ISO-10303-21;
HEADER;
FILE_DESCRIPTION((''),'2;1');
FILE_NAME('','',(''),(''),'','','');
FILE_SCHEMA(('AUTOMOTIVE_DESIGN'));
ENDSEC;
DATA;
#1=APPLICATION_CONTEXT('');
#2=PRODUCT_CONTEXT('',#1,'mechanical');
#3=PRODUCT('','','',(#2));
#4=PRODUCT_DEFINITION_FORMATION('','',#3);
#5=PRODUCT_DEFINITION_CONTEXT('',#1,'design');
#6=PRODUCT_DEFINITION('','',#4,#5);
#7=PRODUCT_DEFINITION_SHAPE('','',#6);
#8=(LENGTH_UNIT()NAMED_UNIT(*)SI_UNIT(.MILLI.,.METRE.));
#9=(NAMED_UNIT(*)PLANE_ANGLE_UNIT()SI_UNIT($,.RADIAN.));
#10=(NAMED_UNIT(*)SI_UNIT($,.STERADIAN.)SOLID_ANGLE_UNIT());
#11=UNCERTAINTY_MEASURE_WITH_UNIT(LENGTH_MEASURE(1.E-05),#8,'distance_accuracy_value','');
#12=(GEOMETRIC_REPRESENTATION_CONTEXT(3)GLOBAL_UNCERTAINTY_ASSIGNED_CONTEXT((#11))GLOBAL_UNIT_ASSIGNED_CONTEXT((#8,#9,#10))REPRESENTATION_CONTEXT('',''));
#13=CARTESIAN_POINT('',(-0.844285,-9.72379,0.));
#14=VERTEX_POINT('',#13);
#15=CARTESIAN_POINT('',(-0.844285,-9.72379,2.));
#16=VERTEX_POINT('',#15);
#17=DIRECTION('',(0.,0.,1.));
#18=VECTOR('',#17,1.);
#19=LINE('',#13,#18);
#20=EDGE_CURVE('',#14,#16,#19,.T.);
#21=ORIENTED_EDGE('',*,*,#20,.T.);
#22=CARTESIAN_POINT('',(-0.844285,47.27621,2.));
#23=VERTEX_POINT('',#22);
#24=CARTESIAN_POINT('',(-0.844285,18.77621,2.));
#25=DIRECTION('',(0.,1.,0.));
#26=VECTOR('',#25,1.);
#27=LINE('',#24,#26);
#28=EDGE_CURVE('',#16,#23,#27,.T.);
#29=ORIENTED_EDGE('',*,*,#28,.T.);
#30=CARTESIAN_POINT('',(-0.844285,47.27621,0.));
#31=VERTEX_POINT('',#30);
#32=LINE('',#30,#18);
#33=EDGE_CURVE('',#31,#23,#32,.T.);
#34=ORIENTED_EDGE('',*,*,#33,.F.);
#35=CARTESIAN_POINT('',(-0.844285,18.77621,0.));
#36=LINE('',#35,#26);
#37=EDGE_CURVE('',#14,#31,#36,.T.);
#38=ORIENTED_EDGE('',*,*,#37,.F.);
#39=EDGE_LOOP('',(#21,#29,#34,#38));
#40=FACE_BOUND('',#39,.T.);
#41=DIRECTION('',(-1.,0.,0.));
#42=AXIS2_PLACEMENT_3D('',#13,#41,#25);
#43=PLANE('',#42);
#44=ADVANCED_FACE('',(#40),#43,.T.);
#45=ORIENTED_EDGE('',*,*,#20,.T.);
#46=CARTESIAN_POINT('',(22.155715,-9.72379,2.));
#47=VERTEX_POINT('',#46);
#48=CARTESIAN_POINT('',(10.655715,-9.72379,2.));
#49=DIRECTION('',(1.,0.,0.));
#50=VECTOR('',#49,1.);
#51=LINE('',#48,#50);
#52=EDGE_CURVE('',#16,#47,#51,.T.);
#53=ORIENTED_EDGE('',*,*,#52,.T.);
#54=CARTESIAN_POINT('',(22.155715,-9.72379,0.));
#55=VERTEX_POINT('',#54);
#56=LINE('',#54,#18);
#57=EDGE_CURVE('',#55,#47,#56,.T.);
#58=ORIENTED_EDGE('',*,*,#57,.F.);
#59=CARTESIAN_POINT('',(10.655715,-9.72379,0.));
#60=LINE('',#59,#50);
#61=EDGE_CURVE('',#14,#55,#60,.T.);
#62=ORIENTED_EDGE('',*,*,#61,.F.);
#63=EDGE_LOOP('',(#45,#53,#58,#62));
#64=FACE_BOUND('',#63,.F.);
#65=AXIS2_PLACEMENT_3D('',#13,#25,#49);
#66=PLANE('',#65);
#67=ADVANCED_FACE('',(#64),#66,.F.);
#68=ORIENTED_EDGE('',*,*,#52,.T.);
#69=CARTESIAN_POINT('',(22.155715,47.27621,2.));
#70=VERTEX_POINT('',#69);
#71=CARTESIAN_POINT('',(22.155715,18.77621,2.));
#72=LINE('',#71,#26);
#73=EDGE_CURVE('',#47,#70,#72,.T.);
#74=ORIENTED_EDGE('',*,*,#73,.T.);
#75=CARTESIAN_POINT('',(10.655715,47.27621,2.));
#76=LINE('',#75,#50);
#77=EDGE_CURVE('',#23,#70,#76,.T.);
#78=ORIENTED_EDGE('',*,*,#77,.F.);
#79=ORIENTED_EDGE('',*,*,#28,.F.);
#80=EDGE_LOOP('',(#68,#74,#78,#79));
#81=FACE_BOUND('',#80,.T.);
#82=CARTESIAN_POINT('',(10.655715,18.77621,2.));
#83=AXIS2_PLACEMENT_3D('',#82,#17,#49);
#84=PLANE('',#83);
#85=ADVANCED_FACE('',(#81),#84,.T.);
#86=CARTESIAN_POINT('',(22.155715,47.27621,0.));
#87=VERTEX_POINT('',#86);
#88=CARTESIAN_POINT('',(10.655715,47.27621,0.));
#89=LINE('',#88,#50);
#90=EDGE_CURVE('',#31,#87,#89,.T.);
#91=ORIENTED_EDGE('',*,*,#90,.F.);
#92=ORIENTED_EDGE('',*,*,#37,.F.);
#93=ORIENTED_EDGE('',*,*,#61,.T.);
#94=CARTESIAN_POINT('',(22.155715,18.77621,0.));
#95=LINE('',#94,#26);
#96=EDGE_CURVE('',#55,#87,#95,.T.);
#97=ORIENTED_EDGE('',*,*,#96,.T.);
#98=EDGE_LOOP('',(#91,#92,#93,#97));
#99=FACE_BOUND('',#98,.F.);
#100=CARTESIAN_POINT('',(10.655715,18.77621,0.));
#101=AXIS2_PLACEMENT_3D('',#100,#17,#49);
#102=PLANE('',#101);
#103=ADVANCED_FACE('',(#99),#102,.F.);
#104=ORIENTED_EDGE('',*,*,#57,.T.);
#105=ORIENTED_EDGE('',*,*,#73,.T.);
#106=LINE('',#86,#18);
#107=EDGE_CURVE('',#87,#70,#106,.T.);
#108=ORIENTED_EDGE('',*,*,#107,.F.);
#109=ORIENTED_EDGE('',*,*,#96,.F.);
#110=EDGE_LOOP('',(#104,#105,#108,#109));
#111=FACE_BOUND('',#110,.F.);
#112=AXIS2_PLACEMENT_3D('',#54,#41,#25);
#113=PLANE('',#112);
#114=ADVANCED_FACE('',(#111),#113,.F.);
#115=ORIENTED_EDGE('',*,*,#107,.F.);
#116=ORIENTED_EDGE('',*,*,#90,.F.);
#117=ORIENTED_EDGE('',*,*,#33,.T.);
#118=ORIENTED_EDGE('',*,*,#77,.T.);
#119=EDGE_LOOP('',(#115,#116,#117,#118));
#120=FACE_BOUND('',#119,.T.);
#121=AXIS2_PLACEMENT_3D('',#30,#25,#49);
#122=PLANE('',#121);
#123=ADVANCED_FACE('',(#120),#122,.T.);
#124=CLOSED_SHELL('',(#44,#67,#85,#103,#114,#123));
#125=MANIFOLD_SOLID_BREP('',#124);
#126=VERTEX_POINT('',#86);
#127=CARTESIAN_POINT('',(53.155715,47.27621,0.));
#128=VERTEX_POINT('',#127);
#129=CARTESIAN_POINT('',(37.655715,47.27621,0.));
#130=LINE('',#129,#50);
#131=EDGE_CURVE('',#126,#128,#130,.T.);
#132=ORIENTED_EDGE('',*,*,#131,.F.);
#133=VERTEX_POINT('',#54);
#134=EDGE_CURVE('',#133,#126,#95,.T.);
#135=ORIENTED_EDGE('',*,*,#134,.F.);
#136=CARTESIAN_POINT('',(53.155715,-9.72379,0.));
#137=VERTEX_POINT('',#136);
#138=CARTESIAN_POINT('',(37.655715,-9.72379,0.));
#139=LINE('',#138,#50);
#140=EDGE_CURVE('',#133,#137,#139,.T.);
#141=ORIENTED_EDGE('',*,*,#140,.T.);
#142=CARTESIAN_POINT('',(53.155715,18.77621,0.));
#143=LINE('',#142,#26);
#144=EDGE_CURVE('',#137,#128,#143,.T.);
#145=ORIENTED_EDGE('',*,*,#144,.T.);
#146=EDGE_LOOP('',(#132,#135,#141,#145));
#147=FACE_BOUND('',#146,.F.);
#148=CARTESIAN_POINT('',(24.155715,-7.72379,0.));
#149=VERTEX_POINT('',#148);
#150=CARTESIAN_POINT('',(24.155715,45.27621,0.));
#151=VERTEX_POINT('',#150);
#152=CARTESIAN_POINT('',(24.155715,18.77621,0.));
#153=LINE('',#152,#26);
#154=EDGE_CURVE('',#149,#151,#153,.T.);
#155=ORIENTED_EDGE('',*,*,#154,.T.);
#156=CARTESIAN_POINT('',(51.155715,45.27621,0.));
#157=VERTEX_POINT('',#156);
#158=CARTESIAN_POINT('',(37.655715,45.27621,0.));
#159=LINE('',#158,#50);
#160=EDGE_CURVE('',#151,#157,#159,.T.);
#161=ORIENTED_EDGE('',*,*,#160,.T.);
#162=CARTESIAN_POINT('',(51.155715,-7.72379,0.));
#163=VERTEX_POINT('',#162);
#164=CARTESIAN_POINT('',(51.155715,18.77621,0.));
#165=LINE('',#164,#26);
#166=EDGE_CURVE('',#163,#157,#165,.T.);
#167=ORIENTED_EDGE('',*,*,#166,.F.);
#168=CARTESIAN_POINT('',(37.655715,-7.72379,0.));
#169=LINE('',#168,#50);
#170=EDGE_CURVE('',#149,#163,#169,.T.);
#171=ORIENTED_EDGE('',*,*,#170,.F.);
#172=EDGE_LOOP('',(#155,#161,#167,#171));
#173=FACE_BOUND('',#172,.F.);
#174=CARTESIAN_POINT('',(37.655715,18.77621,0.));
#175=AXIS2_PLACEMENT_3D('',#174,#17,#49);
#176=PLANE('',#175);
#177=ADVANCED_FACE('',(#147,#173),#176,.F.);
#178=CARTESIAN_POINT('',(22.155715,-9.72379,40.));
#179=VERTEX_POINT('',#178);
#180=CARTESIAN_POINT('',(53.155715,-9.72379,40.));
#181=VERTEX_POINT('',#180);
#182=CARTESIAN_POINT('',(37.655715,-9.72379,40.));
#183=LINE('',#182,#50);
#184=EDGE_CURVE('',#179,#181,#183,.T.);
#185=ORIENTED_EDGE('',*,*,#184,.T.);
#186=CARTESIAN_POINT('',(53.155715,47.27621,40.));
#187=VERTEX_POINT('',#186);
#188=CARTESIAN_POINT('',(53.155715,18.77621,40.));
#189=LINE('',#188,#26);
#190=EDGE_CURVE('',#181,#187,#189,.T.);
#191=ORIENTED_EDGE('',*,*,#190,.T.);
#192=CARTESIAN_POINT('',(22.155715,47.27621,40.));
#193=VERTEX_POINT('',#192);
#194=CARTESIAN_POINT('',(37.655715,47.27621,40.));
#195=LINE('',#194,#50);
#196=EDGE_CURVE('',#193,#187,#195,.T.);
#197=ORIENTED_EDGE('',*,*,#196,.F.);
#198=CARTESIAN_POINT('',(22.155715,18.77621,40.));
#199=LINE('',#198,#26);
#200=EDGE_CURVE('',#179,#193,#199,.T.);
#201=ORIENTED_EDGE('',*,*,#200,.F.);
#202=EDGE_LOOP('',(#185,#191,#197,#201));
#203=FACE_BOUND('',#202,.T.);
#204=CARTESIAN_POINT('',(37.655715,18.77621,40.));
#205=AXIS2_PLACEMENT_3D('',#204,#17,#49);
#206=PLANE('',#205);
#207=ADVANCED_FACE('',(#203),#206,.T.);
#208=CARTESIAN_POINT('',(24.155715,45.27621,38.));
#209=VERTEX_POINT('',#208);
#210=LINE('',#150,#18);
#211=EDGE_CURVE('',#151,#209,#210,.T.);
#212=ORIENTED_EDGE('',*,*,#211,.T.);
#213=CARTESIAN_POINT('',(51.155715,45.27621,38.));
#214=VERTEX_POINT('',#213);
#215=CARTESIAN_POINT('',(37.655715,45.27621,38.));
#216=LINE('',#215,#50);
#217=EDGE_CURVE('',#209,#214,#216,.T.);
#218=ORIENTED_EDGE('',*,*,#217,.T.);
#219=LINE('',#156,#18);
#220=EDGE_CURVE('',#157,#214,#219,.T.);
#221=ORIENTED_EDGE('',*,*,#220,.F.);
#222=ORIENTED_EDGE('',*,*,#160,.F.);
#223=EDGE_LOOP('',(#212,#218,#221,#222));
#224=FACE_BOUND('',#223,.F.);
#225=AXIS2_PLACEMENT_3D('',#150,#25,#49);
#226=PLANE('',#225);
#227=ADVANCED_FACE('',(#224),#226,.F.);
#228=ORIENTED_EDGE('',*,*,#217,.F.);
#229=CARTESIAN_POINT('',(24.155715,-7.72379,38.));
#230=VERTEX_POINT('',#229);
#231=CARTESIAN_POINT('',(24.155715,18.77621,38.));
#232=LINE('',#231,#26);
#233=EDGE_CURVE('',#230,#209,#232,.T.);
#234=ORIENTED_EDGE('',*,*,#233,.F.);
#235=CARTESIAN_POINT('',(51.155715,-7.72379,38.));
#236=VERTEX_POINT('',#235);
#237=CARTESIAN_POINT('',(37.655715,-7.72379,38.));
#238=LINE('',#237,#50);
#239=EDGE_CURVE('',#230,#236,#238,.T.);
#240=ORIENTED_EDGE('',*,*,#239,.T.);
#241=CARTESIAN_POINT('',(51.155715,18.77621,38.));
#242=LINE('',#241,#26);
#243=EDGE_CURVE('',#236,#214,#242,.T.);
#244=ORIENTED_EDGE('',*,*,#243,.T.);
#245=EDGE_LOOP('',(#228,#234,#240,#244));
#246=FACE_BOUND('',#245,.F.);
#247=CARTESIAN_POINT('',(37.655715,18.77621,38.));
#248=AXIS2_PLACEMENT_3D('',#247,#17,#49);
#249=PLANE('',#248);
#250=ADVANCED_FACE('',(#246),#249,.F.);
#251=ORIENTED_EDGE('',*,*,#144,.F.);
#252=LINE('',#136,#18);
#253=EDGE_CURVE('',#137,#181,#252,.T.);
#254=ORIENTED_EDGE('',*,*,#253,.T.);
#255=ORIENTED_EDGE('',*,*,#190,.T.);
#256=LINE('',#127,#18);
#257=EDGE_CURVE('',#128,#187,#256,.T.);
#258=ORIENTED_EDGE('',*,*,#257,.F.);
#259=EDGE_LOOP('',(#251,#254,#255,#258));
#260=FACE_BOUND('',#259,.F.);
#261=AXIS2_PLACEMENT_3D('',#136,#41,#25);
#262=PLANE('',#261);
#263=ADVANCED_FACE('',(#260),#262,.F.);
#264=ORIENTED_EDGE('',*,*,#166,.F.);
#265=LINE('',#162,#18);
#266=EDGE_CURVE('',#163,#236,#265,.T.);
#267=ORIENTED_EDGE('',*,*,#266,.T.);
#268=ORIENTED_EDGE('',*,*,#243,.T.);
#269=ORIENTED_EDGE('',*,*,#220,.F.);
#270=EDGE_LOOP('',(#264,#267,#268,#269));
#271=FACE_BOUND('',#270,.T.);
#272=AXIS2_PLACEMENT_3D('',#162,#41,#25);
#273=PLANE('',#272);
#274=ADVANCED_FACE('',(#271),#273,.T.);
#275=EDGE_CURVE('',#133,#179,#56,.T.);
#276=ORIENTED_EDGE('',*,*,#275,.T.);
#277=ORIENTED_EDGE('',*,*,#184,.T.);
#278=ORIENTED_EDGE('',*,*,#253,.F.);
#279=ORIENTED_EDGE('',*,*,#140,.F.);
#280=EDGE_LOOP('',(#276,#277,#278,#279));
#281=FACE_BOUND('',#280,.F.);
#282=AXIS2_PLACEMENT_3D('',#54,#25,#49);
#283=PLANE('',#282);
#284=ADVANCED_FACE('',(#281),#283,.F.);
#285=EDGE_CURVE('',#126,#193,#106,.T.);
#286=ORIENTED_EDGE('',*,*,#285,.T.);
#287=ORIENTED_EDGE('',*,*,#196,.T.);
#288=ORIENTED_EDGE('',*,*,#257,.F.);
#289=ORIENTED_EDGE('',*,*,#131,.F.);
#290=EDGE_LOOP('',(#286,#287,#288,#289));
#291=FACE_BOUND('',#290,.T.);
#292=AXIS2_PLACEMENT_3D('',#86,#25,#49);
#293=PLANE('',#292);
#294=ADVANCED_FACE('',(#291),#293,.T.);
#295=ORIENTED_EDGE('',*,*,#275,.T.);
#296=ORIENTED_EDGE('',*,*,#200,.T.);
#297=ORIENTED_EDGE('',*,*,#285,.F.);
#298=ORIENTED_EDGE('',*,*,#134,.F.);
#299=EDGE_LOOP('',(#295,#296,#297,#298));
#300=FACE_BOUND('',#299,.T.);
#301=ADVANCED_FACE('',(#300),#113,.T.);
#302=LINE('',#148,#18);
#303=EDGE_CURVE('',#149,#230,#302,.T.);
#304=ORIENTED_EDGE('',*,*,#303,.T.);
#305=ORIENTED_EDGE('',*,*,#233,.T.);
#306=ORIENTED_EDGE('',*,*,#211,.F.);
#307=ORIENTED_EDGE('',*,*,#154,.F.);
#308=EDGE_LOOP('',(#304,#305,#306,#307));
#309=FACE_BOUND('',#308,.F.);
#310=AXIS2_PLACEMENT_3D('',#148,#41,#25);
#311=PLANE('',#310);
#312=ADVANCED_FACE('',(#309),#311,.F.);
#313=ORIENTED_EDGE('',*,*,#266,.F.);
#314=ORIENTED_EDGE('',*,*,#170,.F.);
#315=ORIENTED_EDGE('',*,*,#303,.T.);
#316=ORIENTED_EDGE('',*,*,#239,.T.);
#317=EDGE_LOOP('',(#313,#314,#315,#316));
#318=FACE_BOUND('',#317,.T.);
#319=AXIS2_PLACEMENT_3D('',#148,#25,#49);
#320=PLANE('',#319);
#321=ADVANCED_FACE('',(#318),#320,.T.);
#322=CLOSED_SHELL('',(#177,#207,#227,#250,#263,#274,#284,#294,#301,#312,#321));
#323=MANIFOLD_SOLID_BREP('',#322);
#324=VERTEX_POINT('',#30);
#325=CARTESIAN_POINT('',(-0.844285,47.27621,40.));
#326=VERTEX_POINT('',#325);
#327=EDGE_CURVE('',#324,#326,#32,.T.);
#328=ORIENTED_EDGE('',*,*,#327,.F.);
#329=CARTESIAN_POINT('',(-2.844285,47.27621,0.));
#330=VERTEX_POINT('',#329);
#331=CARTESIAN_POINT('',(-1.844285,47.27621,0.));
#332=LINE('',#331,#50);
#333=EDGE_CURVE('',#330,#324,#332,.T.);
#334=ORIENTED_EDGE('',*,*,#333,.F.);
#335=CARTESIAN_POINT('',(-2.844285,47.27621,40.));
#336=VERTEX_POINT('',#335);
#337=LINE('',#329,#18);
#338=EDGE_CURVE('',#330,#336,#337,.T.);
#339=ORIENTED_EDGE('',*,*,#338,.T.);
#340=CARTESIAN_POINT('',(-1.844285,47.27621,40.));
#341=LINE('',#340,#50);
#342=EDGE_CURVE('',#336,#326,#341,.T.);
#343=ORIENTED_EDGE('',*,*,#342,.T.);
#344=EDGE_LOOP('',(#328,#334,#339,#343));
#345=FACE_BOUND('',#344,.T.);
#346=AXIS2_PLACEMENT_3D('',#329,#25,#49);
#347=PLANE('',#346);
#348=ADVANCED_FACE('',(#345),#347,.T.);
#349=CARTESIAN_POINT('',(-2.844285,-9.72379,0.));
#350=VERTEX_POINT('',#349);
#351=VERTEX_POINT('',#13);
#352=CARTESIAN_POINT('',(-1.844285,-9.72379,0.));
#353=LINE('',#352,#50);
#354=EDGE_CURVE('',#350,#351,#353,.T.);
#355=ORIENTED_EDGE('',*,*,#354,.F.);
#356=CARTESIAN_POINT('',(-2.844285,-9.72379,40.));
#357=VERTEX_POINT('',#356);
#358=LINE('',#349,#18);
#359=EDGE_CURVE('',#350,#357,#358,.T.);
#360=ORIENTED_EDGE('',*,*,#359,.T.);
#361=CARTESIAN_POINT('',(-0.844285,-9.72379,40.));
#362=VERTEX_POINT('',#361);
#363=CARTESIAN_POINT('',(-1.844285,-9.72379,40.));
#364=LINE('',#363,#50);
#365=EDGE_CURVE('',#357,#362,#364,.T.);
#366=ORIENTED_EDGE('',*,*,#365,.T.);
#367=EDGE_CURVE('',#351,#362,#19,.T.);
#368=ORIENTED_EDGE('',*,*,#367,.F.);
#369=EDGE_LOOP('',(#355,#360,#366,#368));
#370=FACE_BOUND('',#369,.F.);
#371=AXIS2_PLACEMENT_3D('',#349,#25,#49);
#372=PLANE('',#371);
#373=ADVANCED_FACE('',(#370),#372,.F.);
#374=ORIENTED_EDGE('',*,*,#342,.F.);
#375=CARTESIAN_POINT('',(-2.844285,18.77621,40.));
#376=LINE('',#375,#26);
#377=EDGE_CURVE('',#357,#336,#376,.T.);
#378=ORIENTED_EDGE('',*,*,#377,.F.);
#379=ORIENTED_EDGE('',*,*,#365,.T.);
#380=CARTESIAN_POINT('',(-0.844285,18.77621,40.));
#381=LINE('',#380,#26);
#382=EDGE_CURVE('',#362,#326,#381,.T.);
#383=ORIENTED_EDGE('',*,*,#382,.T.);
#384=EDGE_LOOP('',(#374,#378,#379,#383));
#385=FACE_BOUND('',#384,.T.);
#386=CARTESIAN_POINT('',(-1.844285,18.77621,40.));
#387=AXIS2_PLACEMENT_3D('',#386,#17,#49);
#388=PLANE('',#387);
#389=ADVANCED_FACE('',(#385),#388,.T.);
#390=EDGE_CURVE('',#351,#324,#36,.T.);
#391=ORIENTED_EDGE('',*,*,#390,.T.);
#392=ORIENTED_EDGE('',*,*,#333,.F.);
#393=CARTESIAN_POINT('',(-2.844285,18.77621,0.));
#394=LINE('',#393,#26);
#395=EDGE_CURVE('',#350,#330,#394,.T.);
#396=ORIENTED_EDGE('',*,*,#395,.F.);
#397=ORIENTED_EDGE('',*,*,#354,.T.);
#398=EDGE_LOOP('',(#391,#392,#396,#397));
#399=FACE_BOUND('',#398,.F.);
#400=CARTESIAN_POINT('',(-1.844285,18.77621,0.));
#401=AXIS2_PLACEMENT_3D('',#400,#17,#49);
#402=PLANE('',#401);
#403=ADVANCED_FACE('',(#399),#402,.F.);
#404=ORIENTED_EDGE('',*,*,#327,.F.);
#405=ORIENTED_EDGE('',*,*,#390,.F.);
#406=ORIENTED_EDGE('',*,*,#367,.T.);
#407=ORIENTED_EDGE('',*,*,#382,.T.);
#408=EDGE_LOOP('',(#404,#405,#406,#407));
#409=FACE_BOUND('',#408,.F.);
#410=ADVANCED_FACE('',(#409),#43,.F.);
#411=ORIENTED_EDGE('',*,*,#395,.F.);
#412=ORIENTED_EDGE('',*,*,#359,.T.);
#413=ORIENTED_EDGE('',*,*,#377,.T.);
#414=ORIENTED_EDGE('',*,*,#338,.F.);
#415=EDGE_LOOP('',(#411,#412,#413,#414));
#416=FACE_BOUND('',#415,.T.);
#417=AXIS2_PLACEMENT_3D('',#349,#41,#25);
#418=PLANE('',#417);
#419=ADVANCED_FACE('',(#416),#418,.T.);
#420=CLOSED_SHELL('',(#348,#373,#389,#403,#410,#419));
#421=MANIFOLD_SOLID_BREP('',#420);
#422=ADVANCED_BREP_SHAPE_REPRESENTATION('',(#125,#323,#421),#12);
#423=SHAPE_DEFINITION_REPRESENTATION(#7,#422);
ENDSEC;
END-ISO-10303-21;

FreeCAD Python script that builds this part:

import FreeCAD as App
import Part
import Sketcher

V = App.Vector
Q = App.Units.Quantity


def add_polygon(sketch, points):
    """Adds a closed chain of lines whose ends are joined by coincident constraints."""
    first, n = sketch.GeometryCount, len(points)
    for a, b in zip(points, points[1:] + points[:1]):
        sketch.addGeometry(Part.LineSegment(App.Vector(*a, 0), App.Vector(*b, 0)), False)
    for i in range(n):
        sketch.addConstraint(Sketcher.Constraint("Coincident", first + i, 2, first + (i + 1) % n, 1))

doc = App.newDocument("Part")
params = doc.addObject("Spreadsheet::Sheet", "Params")
for row, (alias, value) in enumerate([
    ("sketch1_width", "2 mm"),
    ("sketch1_width2", "31 mm"),
    ("sketch1_width3", "27 mm"),
    ("sketch1_height", "57 mm"),
    ("sketch1_height2", "53 mm"),
    ("pad1_length", "40 mm"),
    ("sketch2_width", "27 mm"),
    ("sketch2_height", "53 mm"),
    ("pad2_length", "40 mm"),
    ("sketch3_width", "27 mm"),
    ("sketch3_height", "53 mm"),
    ("pocket1_length", "38 mm"),
    ("sketch4_width", "23 mm"),
    ("sketch4_height", "57 mm"),
    ("pad3_length", "2 mm"),
], start=1):
    params.set(f"A{row}", alias)
    params.set(f"B{row}", "=" + value)
    params.setAlias(f"B{row}", alias)

body = doc.addObject("PartDesign::Body", "Body")
body.AllowCompound = True

sketch1 = body.newObject("Sketcher::SketchObject", "Sketch")
sketch1.AttachmentSupport = (doc.getObject("XY_Plane"), [""])
sketch1.MapMode = "FlatFace"
add_polygon(sketch1, [(-2.844285, 47.27621), (-2.844285, -9.72379), (-0.844285, -9.72379), (-0.844285, 47.27621)])
add_polygon(sketch1, [(22.155715, 47.27621), (22.155715, -9.72379), (53.155715, -9.72379), (53.155715, 47.27621)])
add_polygon(sketch1, [(51.155715, -7.72379), (24.155715, -7.72379), (24.155715, 45.27621), (51.155715, 45.27621)])
sketch1.addConstraint([
    Sketcher.Constraint("Vertical", 0),
    Sketcher.Constraint("Horizontal", 1),
    Sketcher.Constraint("Vertical", 2),
    Sketcher.Constraint("Horizontal", 3),
    Sketcher.Constraint("Vertical", 4),
    Sketcher.Constraint("Horizontal", 5),
    Sketcher.Constraint("Vertical", 6),
    Sketcher.Constraint("Horizontal", 7),
    Sketcher.Constraint("Horizontal", 8),
    Sketcher.Constraint("Vertical", 9),
    Sketcher.Constraint("Horizontal", 10),
    Sketcher.Constraint("Vertical", 11),
    Sketcher.Constraint("Horizontal", 1, 2, 4, 2),
    Sketcher.Constraint("Horizontal", 3, 2, 6, 2),
    Sketcher.Constraint("DistanceX", 1, 1, 1, 2, Q("2 mm")),
    Sketcher.Constraint("DistanceX", 5, 1, 5, 2, Q("31 mm")),
    Sketcher.Constraint("DistanceX", 8, 2, 8, 1, Q("27 mm")),
    Sketcher.Constraint("DistanceY", 0, 2, 0, 1, Q("57 mm")),
    Sketcher.Constraint("DistanceY", 9, 1, 9, 2, Q("53 mm")),
    Sketcher.Constraint("DistanceX", 1, 2, 4, 2, Q("23 mm")),
    Sketcher.Constraint("DistanceX", 4, 2, 8, 2, Q("2 mm")),
    Sketcher.Constraint("DistanceY", 4, 2, 8, 2, Q("2 mm")),
    Sketcher.Constraint("DistanceY", 0, 2, -1, 1, Q("9.72379 mm")),
    Sketcher.Constraint("DistanceX", 0, 2, -1, 1, Q("2.844285 mm")),
])
sketch1.setExpression("Constraints[26]", "Params.sketch1_width")
sketch1.setExpression("Constraints[27]", "Params.sketch1_width2")
sketch1.setExpression("Constraints[28]", "Params.sketch1_width3")
sketch1.setExpression("Constraints[29]", "Params.sketch1_height")
sketch1.setExpression("Constraints[30]", "Params.sketch1_height2")
pad1 = body.newObject("PartDesign::Pad", "Pad")
pad1.Profile = sketch1
pad1.setExpression("Length", "Params.pad1_length")

sketch2 = body.newObject("Sketcher::SketchObject", "Sketch001")
sketch2.AttachmentSupport = (doc.getObject("XY_Plane"), [""])
sketch2.MapMode = "FlatFace"
add_polygon(sketch2, [(24.155715, 45.27621), (24.155715, -7.72379), (51.155715, -7.72379), (51.155715, 45.27621)])
sketch2.addConstraint([
    Sketcher.Constraint("Vertical", 0),
    Sketcher.Constraint("Horizontal", 1),
    Sketcher.Constraint("Vertical", 2),
    Sketcher.Constraint("Horizontal", 3),
    Sketcher.Constraint("DistanceX", 1, 1, 1, 2, Q("27 mm")),
    Sketcher.Constraint("DistanceY", 0, 2, 0, 1, Q("53 mm")),
    Sketcher.Constraint("DistanceY", 0, 2, -1, 1, Q("7.72379 mm")),
    Sketcher.Constraint("DistanceX", -1, 1, 0, 2, Q("24.155715 mm")),
])
sketch2.setExpression("Constraints[8]", "Params.sketch2_width")
sketch2.setExpression("Constraints[9]", "Params.sketch2_height")
pad2 = body.newObject("PartDesign::Pad", "Pad001")
pad2.Profile = sketch2
pad2.setExpression("Length", "Params.pad2_length")

sketch3 = body.newObject("Sketcher::SketchObject", "Sketch002")
sketch3.AttachmentSupport = (doc.getObject("XY_Plane"), [""])
sketch3.MapMode = "FlatFace"
add_polygon(sketch3, [(24.155715, 45.27621), (24.155715, -7.72379), (51.155715, -7.72379), (51.155715, 45.27621)])
sketch3.addConstraint([
    Sketcher.Constraint("Vertical", 0),
    Sketcher.Constraint("Horizontal", 1),
    Sketcher.Constraint("Vertical", 2),
    Sketcher.Constraint("Horizontal", 3),
    Sketcher.Constraint("DistanceX", 1, 1, 1, 2, Q("27 mm")),
    Sketcher.Constraint("DistanceY", 0, 2, 0, 1, Q("53 mm")),
    Sketcher.Constraint("DistanceY", 0, 2, -1, 1, Q("7.72379 mm")),
    Sketcher.Constraint("DistanceX", -1, 1, 0, 2, Q("24.155715 mm")),
])
sketch3.setExpression("Constraints[8]", "Params.sketch3_width")
sketch3.setExpression("Constraints[9]", "Params.sketch3_height")
pocket1 = body.newObject("PartDesign::Pocket", "Pocket")
pocket1.Profile = sketch3
pocket1.setExpression("Length", "Params.pocket1_length")
pocket1.Reversed = True
body2 = doc.addObject("PartDesign::Body", "Body001")

sketch4 = body2.newObject("Sketcher::SketchObject", "Sketch003")
sketch4.AttachmentSupport = (doc.getObject("XY_Plane001"), [""])
sketch4.MapMode = "FlatFace"
add_polygon(sketch4, [(-0.844285, 47.27621), (-0.844285, -9.72379), (22.155715, -9.72379), (22.155715, 47.27621)])
sketch4.addConstraint([
    Sketcher.Constraint("Vertical", 0),
    Sketcher.Constraint("Horizontal", 1),
    Sketcher.Constraint("Vertical", 2),
    Sketcher.Constraint("Horizontal", 3),
    Sketcher.Constraint("DistanceX", 1, 1, 1, 2, Q("23 mm")),
    Sketcher.Constraint("DistanceY", 0, 2, 0, 1, Q("57 mm")),
    Sketcher.Constraint("DistanceY", 0, 2, -1, 1, Q("9.72379 mm")),
    Sketcher.Constraint("DistanceX", 0, 2, -1, 1, Q("0.844285 mm")),
])
sketch4.setExpression("Constraints[8]", "Params.sketch4_width")
sketch4.setExpression("Constraints[9]", "Params.sketch4_height")
pad3 = body2.newObject("PartDesign::Pad", "Pad002")
pad3.Profile = sketch4
pad3.setExpression("Length", "Params.pad3_length")

doc.recompute()
